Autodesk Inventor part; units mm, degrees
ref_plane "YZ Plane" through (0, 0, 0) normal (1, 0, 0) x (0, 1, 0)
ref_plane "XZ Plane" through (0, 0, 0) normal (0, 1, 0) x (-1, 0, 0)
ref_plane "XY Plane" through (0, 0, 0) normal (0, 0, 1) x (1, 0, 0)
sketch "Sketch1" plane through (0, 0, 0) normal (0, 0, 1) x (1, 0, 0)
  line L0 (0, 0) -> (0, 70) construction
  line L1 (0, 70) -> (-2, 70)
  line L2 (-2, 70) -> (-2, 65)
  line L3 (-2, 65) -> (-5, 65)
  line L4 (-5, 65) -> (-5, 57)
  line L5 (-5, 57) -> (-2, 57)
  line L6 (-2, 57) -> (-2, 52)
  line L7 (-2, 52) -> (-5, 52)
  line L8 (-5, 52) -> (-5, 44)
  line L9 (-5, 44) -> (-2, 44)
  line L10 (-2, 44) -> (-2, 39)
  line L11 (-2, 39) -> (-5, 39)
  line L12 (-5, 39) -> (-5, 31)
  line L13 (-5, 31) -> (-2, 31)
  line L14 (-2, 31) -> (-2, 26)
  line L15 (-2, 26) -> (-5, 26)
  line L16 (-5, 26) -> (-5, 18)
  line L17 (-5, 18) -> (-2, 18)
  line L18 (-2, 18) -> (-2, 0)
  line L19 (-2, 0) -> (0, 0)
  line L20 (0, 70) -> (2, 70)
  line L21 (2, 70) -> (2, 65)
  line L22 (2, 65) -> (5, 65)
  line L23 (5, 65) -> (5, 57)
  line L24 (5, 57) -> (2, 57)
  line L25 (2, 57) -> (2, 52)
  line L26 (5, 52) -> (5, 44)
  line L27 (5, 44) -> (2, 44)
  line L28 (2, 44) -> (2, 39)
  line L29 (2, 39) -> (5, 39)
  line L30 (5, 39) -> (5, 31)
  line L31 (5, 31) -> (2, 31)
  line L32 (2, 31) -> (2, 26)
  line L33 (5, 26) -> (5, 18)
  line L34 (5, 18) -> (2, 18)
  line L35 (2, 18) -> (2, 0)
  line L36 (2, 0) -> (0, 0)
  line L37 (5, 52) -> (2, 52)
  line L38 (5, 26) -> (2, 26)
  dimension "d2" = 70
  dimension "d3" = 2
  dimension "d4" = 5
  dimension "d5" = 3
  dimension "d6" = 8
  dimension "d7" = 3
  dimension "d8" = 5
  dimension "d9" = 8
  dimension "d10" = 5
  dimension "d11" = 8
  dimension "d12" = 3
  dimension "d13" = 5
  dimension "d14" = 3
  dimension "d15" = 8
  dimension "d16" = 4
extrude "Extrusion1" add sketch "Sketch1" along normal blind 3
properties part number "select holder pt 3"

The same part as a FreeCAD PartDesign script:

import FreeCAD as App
import Part
import Sketcher
Q = App.Units.Quantity

doc = App.newDocument("Part")
params = doc.addObject("Spreadsheet::Sheet", "Params")
for row, (alias, value) in enumerate([
    ("sketch1_width", "4 mm"),
    ("sketch1_width2", "3 mm"),
    ("sketch1_height", "5 mm"),
    ("sketch1_height2", "8 mm"),
    ("pad1_length", "3 mm"),
], start=1):
    params.set(f"A{row}", alias)
    params.set(f"B{row}", "=" + value)
    params.setAlias(f"B{row}", alias)

body = doc.addObject("PartDesign::Body", "Body")

sketch1 = doc.addObject("Sketcher::SketchObject", "Sketch")
body.addObject(sketch1)
sketch1.AttachmentSupport = (doc.XY_Plane, [""])
sketch1.MapMode = "FlatFace"
sketch1.addGeometry(Part.LineSegment(App.Vector(2, 70, 0), App.Vector(-2, 70, 0)), False)
sketch1.addGeometry(Part.LineSegment(App.Vector(-2, 70, 0), App.Vector(-2, 65, 0)), False)
sketch1.addGeometry(Part.LineSegment(App.Vector(-2, 65, 0), App.Vector(-5, 65, 0)), False)
sketch1.addGeometry(Part.LineSegment(App.Vector(-5, 65, 0), App.Vector(-5, 57, 0)), False)
sketch1.addGeometry(Part.LineSegment(App.Vector(-5, 57, 0), App.Vector(-2, 57, 0)), False)
sketch1.addGeometry(Part.LineSegment(App.Vector(-2, 57, 0), App.Vector(-2, 52, 0)), False)
sketch1.addGeometry(Part.LineSegment(App.Vector(-2, 52, 0), App.Vector(-5, 52, 0)), False)
sketch1.addGeometry(Part.LineSegment(App.Vector(-5, 52, 0), App.Vector(-5, 44, 0)), False)
sketch1.addGeometry(Part.LineSegment(App.Vector(-5, 44, 0), App.Vector(-2, 44, 0)), False)
sketch1.addGeometry(Part.LineSegment(App.Vector(-2, 44, 0), App.Vector(-2, 39, 0)), False)
sketch1.addGeometry(Part.LineSegment(App.Vector(-2, 39, 0), App.Vector(-5, 39, 0)), False)
sketch1.addGeometry(Part.LineSegment(App.Vector(-5, 39, 0), App.Vector(-5, 31, 0)), False)
sketch1.addGeometry(Part.LineSegment(App.Vector(-5, 31, 0), App.Vector(-2, 31, 0)), False)
sketch1.addGeometry(Part.LineSegment(App.Vector(-2, 31, 0), App.Vector(-2, 26, 0)), False)
sketch1.addGeometry(Part.LineSegment(App.Vector(-2, 26, 0), App.Vector(-5, 26, 0)), False)
sketch1.addGeometry(Part.LineSegment(App.Vector(-5, 26, 0), App.Vector(-5, 18, 0)), False)
sketch1.addGeometry(Part.LineSegment(App.Vector(-5, 18, 0), App.Vector(-2, 18, 0)), False)
sketch1.addGeometry(Part.LineSegment(App.Vector(-2, 18, 0), App.Vector(-2, 0, 0)), False)
sketch1.addGeometry(Part.LineSegment(App.Vector(-2, 0, 0), App.Vector(2, 0, 0)), False)
sketch1.addGeometry(Part.LineSegment(App.Vector(2, 0, 0), App.Vector(2, 18, 0)), False)
sketch1.addGeometry(Part.LineSegment(App.Vector(2, 18, 0), App.Vector(5, 18, 0)), False)
sketch1.addGeometry(Part.LineSegment(App.Vector(5, 18, 0), App.Vector(5, 26, 0)), False)
sketch1.addGeometry(Part.LineSegment(App.Vector(5, 26, 0), App.Vector(2, 26, 0)), False)
sketch1.addGeometry(Part.LineSegment(App.Vector(2, 26, 0), App.Vector(2, 31, 0)), False)
sketch1.addGeometry(Part.LineSegment(App.Vector(2, 31, 0), App.Vector(5, 31, 0)), False)
sketch1.addGeometry(Part.LineSegment(App.Vector(5, 31, 0), App.Vector(5, 39, 0)), False)
sketch1.addGeometry(Part.LineSegment(App.Vector(5, 39, 0), App.Vector(2, 39, 0)), False)
sketch1.addGeometry(Part.LineSegment(App.Vector(2, 39, 0), App.Vector(2, 44, 0)), False)
sketch1.addGeometry(Part.LineSegment(App.Vector(2, 44, 0), App.Vector(5, 44, 0)), False)
sketch1.addGeometry(Part.LineSegment(App.Vector(5, 44, 0), App.Vector(5, 52, 0)), False)
sketch1.addGeometry(Part.LineSegment(App.Vector(5, 52, 0), App.Vector(2, 52, 0)), False)
sketch1.addGeometry(Part.LineSegment(App.Vector(2, 52, 0), App.Vector(2, 57, 0)), False)
sketch1.addGeometry(Part.LineSegment(App.Vector(2, 57, 0), App.Vector(5, 57, 0)), False)
sketch1.addGeometry(Part.LineSegment(App.Vector(5, 57, 0), App.Vector(5, 65, 0)), False)
sketch1.addGeometry(Part.LineSegment(App.Vector(5, 65, 0), App.Vector(2, 65, 0)), False)
sketch1.addGeometry(Part.LineSegment(App.Vector(2, 65, 0), App.Vector(2, 70, 0)), False)
sketch1.addConstraint(Sketcher.Constraint("Coincident", 0, 2, 1, 1))
sketch1.addConstraint(Sketcher.Constraint("Coincident", 1, 2, 2, 1))
sketch1.addConstraint(Sketcher.Constraint("Coincident", 2, 2, 3, 1))
sketch1.addConstraint(Sketcher.Constraint("Coincident", 3, 2, 4, 1))
sketch1.addConstraint(Sketcher.Constraint("Coincident", 4, 2, 5, 1))
sketch1.addConstraint(Sketcher.Constraint("Coincident", 5, 2, 6, 1))
sketch1.addConstraint(Sketcher.Constraint("Coincident", 6, 2, 7, 1))
sketch1.addConstraint(Sketcher.Constraint("Coincident", 7, 2, 8, 1))
sketch1.addConstraint(Sketcher.Constraint("Coincident", 8, 2, 9, 1))
sketch1.addConstraint(Sketcher.Constraint("Coincident", 9, 2, 10, 1))
sketch1.addConstraint(Sketcher.Constraint("Coincident", 10, 2, 11, 1))
sketch1.addConstraint(Sketcher.Constraint("Coincident", 11, 2, 12, 1))
sketch1.addConstraint(Sketcher.Constraint("Coincident", 12, 2, 13, 1))
sketch1.addConstraint(Sketcher.Constraint("Coincident", 13, 2, 14, 1))
sketch1.addConstraint(Sketcher.Constraint("Coincident", 14, 2, 15, 1))
sketch1.addConstraint(Sketcher.Constraint("Coincident", 15, 2, 16, 1))
sketch1.addConstraint(Sketcher.Constraint("Coincident", 16, 2, 17, 1))
sketch1.addConstraint(Sketcher.Constraint("Coincident", 17, 2, 18, 1))
sketch1.addConstraint(Sketcher.Constraint("Coincident", 18, 2, 19, 1))
sketch1.addConstraint(Sketcher.Constraint("Coincident", 19, 2, 20, 1))
sketch1.addConstraint(Sketcher.Constraint("Coincident", 20, 2, 21, 1))
sketch1.addConstraint(Sketcher.Constraint("Coincident", 21, 2, 22, 1))
sketch1.addConstraint(Sketcher.Constraint("Coincident", 22, 2, 23, 1))
sketch1.addConstraint(Sketcher.Constraint("Coincident", 23, 2, 24, 1))
sketch1.addConstraint(Sketcher.Constraint("Coincident", 24, 2, 25, 1))
sketch1.addConstraint(Sketcher.Constraint("Coincident", 25, 2, 26, 1))
sketch1.addConstraint(Sketcher.Constraint("Coincident", 26, 2, 27, 1))
sketch1.addConstraint(Sketcher.Constraint("Coincident", 27, 2, 28, 1))
sketch1.addConstraint(Sketcher.Constraint("Coincident", 28, 2, 29, 1))
sketch1.addConstraint(Sketcher.Constraint("Coincident", 29, 2, 30, 1))
sketch1.addConstraint(Sketcher.Constraint("Coincident", 30, 2, 31, 1))
sketch1.addConstraint(Sketcher.Constraint("Coincident", 31, 2, 32, 1))
sketch1.addConstraint(Sketcher.Constraint("Coincident", 32, 2, 33, 1))
sketch1.addConstraint(Sketcher.Constraint("Coincident", 33, 2, 34, 1))
sketch1.addConstraint(Sketcher.Constraint("Coincident", 34, 2, 35, 1))
sketch1.addConstraint(Sketcher.Constraint("Coincident", 35, 2, 0, 1))
sketch1.addConstraint(Sketcher.Constraint("Horizontal", 0))
sketch1.addConstraint(Sketcher.Constraint("Vertical", 1))
sketch1.addConstraint(Sketcher.Constraint("Horizontal", 2))
sketch1.addConstraint(Sketcher.Constraint("Vertical", 3))
sketch1.addConstraint(Sketcher.Constraint("Horizontal", 4))
sketch1.addConstraint(Sketcher.Constraint("Vertical", 5))
sketch1.addConstraint(Sketcher.Constraint("Horizontal", 6))
sketch1.addConstraint(Sketcher.Constraint("Vertical", 7))
sketch1.addConstraint(Sketcher.Constraint("Horizontal", 8))
sketch1.addConstraint(Sketcher.Constraint("Vertical", 9))
sketch1.addConstraint(Sketcher.Constraint("Horizontal", 10))
sketch1.addConstraint(Sketcher.Constraint("Vertical", 11))
sketch1.addConstraint(Sketcher.Constraint("Horizontal", 12))
sketch1.addConstraint(Sketcher.Constraint("Vertical", 13))
sketch1.addConstraint(Sketcher.Constraint("Horizontal", 14))
sketch1.addConstraint(Sketcher.Constraint("Vertical", 15))
sketch1.addConstraint(Sketcher.Constraint("Horizontal", 16))
sketch1.addConstraint(Sketcher.Constraint("Vertical", 17))
sketch1.addConstraint(Sketcher.Constraint("Horizontal", 18))
sketch1.addConstraint(Sketcher.Constraint("Vertical", 19))
sketch1.addConstraint(Sketcher.Constraint("Horizontal", 20))
sketch1.addConstraint(Sketcher.Constraint("Vertical", 21))
sketch1.addConstraint(Sketcher.Constraint("Horizontal", 22))
sketch1.addConstraint(Sketcher.Constraint("Vertical", 23))
sketch1.addConstraint(Sketcher.Constraint("Horizontal", 24))
sketch1.addConstraint(Sketcher.Constraint("Vertical", 25))
sketch1.addConstraint(Sketcher.Constraint("Horizontal", 26))
sketch1.addConstraint(Sketcher.Constraint("Vertical", 27))
sketch1.addConstraint(Sketcher.Constraint("Horizontal", 28))
sketch1.addConstraint(Sketcher.Constraint("Vertical", 29))
sketch1.addConstraint(Sketcher.Constraint("Horizontal", 30))
sketch1.addConstraint(Sketcher.Constraint("Vertical", 31))
sketch1.addConstraint(Sketcher.Constraint("Horizontal", 32))
sketch1.addConstraint(Sketcher.Constraint("Vertical", 33))
sketch1.addConstraint(Sketcher.Constraint("Horizontal", 34))
sketch1.addConstraint(Sketcher.Constraint("Vertical", 35))
sketch1.addConstraint(Sketcher.Constraint("Symmetric", 17, 2, 18, 2, -1, 1))
sketch1.addConstraint(Sketcher.Constraint("Symmetric", 15, 2, 20, 2, -2))
sketch1.addConstraint(Sketcher.Constraint("Symmetric", 13, 2, 22, 2, -2))
sketch1.addConstraint(Sketcher.Constraint("Symmetric", 11, 2, 24, 2, -2))
sketch1.addConstraint(Sketcher.Constraint("Symmetric", 9, 2, 26, 2, -2))
sketch1.addConstraint(Sketcher.Constraint("Symmetric", 7, 2, 28, 2, -2))
sketch1.addConstraint(Sketcher.Constraint("Symmetric", 5, 2, 30, 2, -2))
sketch1.addConstraint(Sketcher.Constraint("Symmetric", 3, 2, 32, 2, -2))
sketch1.addConstraint(Sketcher.Constraint("Symmetric", 1, 2, 34, 2, -2))
sketch1.addConstraint(Sketcher.Constraint("Vertical", 1, 2, 4, 2))
sketch1.addConstraint(Sketcher.Constraint("Vertical", 3, 2, 6, 2))
sketch1.addConstraint(Sketcher.Constraint("Vertical", 5, 2, 8, 2))
sketch1.addConstraint(Sketcher.Constraint("Vertical", 7, 2, 10, 2))
sketch1.addConstraint(Sketcher.Constraint("Vertical", 9, 2, 12, 2))
sketch1.addConstraint(Sketcher.Constraint("Vertical", 11, 2, 14, 2))
sketch1.addConstraint(Sketcher.Constraint("Vertical", 13, 2, 16, 2))
sketch1.addConstraint(Sketcher.Constraint("Equal", 1, 5))
sketch1.addConstraint(Sketcher.Constraint("Equal", 3, 7))
sketch1.addConstraint(Sketcher.Constraint("Equal", 5, 9))
sketch1.addConstraint(Sketcher.Constraint("Equal", 7, 11))
sketch1.addConstraint(Sketcher.Constraint("Equal", 9, 13))
sketch1.addConstraint(Sketcher.Constraint("Equal", 11, 15))
sketch1.addConstraint(Sketcher.Constraint("DistanceX", 0, 2, 0, 1, Q("4 mm")))
sketch1.addConstraint(Sketcher.Constraint("DistanceX", 2, 2, 2, 1, Q("3 mm")))
sketch1.addConstraint(Sketcher.Constraint("DistanceY", 1, 2, 1, 1, Q("5 mm")))
sketch1.addConstraint(Sketcher.Constraint("DistanceY", 3, 2, 3, 1, Q("8 mm")))
sketch1.addConstraint(Sketcher.Constraint("DistanceY", -1, 1, 0, 2, Q("70 mm")))
sketch1.setExpression("Constraints[94]", "Params.sketch1_width")
sketch1.setExpression("Constraints[95]", "Params.sketch1_width2")
sketch1.setExpression("Constraints[96]", "Params.sketch1_height")
sketch1.setExpression("Constraints[97]", "Params.sketch1_height2")
pad1 = doc.addObject("PartDesign::Pad", "Pad")
body.addObject(pad1)
pad1.Profile = sketch1
pad1.setExpression("Length", "Params.pad1_length")

doc.recompute()
